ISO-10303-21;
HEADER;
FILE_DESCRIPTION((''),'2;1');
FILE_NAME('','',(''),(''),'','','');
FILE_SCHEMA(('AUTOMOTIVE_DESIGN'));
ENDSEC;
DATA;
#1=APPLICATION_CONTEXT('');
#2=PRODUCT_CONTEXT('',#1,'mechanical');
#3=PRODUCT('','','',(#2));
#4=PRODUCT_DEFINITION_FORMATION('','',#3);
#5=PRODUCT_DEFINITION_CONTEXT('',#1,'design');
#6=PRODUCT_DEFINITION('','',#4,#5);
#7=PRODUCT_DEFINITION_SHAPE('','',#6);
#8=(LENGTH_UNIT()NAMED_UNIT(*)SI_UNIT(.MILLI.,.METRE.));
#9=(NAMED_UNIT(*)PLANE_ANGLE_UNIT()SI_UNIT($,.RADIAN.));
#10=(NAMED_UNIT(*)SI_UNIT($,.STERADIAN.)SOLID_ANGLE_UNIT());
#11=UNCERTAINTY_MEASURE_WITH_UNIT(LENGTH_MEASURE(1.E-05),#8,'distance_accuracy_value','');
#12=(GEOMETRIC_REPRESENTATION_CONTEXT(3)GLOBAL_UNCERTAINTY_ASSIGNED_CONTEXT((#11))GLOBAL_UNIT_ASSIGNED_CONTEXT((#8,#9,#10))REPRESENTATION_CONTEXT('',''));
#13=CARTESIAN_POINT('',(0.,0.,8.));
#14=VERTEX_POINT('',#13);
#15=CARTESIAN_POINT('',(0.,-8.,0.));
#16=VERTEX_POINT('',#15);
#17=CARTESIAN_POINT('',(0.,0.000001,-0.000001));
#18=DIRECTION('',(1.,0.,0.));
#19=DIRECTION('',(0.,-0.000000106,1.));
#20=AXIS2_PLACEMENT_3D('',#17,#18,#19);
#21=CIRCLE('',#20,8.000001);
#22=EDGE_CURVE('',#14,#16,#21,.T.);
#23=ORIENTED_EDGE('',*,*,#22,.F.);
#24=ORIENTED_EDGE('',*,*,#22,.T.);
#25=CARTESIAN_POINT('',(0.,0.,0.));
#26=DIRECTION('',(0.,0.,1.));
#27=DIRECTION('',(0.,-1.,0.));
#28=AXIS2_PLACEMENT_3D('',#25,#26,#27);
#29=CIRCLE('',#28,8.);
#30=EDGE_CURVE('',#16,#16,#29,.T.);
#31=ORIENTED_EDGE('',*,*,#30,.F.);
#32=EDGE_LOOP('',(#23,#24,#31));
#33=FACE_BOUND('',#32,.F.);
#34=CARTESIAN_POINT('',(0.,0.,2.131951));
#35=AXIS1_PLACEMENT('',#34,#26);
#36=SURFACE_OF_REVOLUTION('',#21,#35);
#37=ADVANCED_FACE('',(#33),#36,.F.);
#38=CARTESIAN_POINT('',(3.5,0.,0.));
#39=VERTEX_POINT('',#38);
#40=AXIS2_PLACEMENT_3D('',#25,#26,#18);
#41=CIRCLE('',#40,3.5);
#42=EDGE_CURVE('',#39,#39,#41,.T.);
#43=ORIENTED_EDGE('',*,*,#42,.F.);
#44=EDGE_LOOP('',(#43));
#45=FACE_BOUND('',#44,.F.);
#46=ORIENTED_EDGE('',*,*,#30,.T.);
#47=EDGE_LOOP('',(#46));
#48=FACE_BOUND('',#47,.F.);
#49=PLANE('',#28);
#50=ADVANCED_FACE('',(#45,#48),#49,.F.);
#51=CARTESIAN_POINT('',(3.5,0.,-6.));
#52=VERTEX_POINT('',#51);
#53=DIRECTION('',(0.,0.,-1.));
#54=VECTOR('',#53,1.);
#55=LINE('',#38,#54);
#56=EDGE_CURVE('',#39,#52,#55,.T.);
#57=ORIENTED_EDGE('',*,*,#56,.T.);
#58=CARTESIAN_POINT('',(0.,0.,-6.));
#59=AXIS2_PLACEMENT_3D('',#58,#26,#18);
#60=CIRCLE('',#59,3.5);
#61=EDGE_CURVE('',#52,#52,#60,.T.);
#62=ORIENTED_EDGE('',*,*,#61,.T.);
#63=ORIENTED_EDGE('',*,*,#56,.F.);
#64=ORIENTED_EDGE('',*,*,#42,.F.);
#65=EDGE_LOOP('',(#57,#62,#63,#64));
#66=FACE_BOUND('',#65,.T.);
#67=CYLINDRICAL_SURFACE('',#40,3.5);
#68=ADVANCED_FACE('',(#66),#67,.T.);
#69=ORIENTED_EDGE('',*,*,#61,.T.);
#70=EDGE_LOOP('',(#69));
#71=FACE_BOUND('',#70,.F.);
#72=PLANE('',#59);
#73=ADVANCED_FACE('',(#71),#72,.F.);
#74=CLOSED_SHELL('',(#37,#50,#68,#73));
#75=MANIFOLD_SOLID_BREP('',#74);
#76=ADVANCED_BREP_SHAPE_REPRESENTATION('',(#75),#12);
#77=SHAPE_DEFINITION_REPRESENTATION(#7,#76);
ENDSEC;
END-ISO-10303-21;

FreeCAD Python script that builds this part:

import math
import FreeCAD as App
import Part
import Sketcher
Q = App.Units.Quantity

doc = App.newDocument("Part")
params = doc.addObject("Spreadsheet::Sheet", "Params")
for row, (alias, value) in enumerate([
    ("sketch1_diameter", "7 mm"),
    ("pad1_length", "6 mm"),
    ("sketch2_radius", "8.000001 mm"),
    ("revolution_angle", "360 deg"),
], start=1):
    params.set(f"A{row}", alias)
    params.set(f"B{row}", "=" + value)
    params.setAlias(f"B{row}", alias)

body = doc.addObject("PartDesign::Body", "Body")

sketch1 = doc.addObject("Sketcher::SketchObject", "Sketch")
body.addObject(sketch1)
sketch1.AttachmentSupport = (doc.XY_Plane, [""])
sketch1.MapMode = "FlatFace"
sketch1.addGeometry(Part.Circle(App.Vector(0, 0, 0), App.Vector(0, 0, 1), 3.5), False)
sketch1.addConstraint([
    Sketcher.Constraint("Coincident", 0, 3, -1, 1),
    Sketcher.Constraint("Diameter", 0, Q("7 mm")),
])
sketch1.setExpression("Constraints[1]", "Params.sketch1_diameter")
pad1 = doc.addObject("PartDesign::Pad", "Pad")
body.addObject(pad1)
pad1.Profile = sketch1
pad1.setExpression("Length", "Params.pad1_length")
pad1.Reversed = True

sketch2 = doc.addObject("Sketcher::SketchObject", "Sketch001")
body.addObject(sketch2)
sketch2.AttachmentSupport = (doc.YZ_Plane, [""])
sketch2.MapMode = "FlatFace"
sketch2.addGeometry([
    Part.LineSegment(App.Vector(0, 0, 0), App.Vector(0, 8, 0)),
    Part.ArcOfCircle(Part.Circle(App.Vector(0, 0, 0), App.Vector(0, 0, 1), 8), math.radians(90), math.radians(180)),
    Part.LineSegment(App.Vector(-8, 0, 0), App.Vector(0, 0, 0)),
], False)
sketch2.addConstraint([
    Sketcher.Constraint("Coincident", 0, 2, 1, 1),
    Sketcher.Constraint("Coincident", 1, 2, 2, 1),
    Sketcher.Constraint("Coincident", 2, 2, 0, 1),
    Sketcher.Constraint("Vertical", 0),
    Sketcher.Constraint("Horizontal", 2),
    Sketcher.Constraint("Coincident", 1, 3, -1, 1),
    Sketcher.Constraint("Coincident", 2, 2, -1, 1),
    Sketcher.Constraint("Radius", 1, Q("8.000001 mm")),
])
sketch2.setExpression("Constraints[7]", "Params.sketch2_radius")
revolution = doc.addObject("PartDesign::Revolution", "Revolution")
body.addObject(revolution)
revolution.Profile = sketch2
revolution.ReferenceAxis = (sketch2, ["V_Axis"])
revolution.setExpression("Angle", "Params.revolution_angle")

doc.recompute()
